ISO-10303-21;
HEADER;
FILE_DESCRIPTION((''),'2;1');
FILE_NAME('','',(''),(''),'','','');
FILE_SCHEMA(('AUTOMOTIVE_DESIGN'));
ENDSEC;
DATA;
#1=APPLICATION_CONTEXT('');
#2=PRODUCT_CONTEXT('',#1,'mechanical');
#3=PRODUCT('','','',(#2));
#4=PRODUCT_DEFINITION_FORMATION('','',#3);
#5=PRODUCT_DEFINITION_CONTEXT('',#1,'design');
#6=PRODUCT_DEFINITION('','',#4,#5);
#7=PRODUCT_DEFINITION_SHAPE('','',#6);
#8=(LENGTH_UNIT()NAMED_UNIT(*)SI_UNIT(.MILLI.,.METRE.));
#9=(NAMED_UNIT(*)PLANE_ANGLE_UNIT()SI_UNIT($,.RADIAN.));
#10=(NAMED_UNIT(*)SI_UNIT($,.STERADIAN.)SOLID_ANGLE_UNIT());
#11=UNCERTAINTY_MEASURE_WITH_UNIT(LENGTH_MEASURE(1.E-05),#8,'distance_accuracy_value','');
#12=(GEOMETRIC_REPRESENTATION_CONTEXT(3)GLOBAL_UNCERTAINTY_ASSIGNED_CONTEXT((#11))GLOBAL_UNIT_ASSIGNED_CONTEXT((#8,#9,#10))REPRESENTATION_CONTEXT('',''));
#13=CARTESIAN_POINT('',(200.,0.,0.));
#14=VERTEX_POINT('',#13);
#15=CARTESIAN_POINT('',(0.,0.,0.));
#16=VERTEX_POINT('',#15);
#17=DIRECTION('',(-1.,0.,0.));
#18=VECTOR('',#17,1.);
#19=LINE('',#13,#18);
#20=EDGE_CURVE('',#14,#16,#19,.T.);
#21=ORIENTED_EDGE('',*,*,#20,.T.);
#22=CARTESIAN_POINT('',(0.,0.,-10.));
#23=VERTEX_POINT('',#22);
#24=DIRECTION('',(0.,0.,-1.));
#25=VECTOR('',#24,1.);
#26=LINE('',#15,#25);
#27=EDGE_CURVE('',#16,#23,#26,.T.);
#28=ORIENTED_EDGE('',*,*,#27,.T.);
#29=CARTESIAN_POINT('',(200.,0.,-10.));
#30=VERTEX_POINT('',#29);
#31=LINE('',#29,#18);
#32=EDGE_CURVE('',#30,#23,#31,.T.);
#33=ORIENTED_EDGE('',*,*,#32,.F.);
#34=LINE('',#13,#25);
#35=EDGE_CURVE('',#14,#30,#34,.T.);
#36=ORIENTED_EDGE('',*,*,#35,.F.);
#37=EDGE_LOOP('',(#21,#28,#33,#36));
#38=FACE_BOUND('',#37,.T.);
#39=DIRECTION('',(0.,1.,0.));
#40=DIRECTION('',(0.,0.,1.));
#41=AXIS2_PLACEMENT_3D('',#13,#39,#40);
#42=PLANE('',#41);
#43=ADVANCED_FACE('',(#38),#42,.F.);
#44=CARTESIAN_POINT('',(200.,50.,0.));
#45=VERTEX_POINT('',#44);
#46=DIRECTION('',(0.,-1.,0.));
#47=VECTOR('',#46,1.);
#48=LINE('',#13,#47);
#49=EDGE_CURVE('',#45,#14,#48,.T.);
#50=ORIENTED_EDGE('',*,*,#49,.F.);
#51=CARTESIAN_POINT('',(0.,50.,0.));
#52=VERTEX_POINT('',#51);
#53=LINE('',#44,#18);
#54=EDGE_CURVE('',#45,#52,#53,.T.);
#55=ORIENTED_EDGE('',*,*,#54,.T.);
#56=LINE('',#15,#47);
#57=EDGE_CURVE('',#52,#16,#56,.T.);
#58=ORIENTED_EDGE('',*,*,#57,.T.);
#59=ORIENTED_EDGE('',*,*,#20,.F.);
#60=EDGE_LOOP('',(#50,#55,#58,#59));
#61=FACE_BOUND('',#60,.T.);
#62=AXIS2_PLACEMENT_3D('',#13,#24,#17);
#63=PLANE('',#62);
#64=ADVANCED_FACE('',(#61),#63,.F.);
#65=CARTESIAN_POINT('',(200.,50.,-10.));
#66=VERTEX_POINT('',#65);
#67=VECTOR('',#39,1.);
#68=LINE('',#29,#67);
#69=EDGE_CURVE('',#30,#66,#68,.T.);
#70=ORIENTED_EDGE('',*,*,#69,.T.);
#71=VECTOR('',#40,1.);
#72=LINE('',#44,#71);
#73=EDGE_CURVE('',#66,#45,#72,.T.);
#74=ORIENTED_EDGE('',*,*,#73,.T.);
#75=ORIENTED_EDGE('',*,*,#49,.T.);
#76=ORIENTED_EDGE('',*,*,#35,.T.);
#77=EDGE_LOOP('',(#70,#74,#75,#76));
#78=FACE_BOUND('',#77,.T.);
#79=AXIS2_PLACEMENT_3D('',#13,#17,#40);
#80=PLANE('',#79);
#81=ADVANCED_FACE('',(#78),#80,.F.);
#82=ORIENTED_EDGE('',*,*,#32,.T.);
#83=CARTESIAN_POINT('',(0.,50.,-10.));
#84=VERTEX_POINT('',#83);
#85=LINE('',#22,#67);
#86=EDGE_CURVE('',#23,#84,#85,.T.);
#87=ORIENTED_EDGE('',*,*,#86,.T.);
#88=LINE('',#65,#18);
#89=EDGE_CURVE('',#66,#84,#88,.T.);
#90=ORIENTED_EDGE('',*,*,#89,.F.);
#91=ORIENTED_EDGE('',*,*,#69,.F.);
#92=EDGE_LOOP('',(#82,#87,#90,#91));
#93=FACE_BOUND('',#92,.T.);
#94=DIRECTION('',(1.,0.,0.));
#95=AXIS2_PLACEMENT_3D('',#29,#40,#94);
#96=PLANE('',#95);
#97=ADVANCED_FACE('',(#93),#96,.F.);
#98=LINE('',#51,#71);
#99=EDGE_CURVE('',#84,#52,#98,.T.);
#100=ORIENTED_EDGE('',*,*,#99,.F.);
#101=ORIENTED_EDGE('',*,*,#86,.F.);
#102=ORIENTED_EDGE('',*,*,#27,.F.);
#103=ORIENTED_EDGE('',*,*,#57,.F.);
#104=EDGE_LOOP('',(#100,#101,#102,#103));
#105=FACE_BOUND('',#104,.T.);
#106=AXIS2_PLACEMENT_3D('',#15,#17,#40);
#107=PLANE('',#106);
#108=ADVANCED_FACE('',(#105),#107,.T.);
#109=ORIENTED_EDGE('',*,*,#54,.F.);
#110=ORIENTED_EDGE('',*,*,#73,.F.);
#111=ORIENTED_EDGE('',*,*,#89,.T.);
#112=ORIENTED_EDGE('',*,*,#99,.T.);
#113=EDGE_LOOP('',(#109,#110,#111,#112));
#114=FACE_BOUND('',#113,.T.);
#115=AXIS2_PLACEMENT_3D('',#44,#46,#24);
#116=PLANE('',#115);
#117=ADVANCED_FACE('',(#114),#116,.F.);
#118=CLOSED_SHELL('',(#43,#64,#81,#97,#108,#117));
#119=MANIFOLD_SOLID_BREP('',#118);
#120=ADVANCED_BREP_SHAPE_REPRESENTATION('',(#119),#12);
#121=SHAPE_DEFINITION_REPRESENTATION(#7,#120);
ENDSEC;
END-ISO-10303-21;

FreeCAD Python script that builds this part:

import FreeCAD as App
import Part
import Sketcher
from FreeCAD import Vector

doc = App.newDocument("Part")
params = doc.addObject("Spreadsheet::Sheet", "Params")
for row, (alias, value) in enumerate([
    ("sketch1_width", "50 mm"),
    ("sketch1_height", "10 mm"),
    ("pad1_length", "200 mm"),
], start=1):
    params.set(f"A{row}", alias)
    params.set(f"B{row}", "=" + value)
    params.setAlias(f"B{row}", alias)

body = doc.addObject("PartDesign::Body", "Body")

sketch1 = body.newObject("Sketcher::SketchObject", "Sketch")
sketch1.AttachmentSupport = (doc.getObject("YZ_Plane"), [""])
sketch1.MapMode = "FlatFace"
sketch1.addGeometry([
    Part.LineSegment(Vector(50, 0, 0), Vector(0, 0, 0)),
    Part.LineSegment(Vector(0, 0, 0), Vector(0, -10, 0)),
    Part.LineSegment(Vector(0, -10, 0), Vector(50, -10, 0)),
    Part.LineSegment(Vector(50, -10, 0), Vector(50, 0, 0)),
], False)
sketch1.addConstraint([
    Sketcher.Constraint("Coincident", 0, 2, 1, 1),
    Sketcher.Constraint("Coincident", 1, 2, 2, 1),
    Sketcher.Constraint("Coincident", 2, 2, 3, 1),
    Sketcher.Constraint("Coincident", 3, 2, 0, 1),
    Sketcher.Constraint("Horizontal", 0),
    Sketcher.Constraint("Vertical", 1),
    Sketcher.Constraint("Horizontal", 2),
    Sketcher.Constraint("Vertical", 3),
    Sketcher.Constraint("Coincident", 0, 2, -1, 1),
    Sketcher.Constraint("DistanceX", 0, 2, 0, 1, 50.0),
    Sketcher.Constraint("DistanceY", 1, 2, 1, 1, 10.0),
])
sketch1.setExpression("Constraints[9]", "Params.sketch1_width")
sketch1.setExpression("Constraints[10]", "Params.sketch1_height")
pad1 = body.newObject("PartDesign::Pad", "Pad")
pad1.Profile = sketch1
pad1.setExpression("Length", "Params.pad1_length")

doc.recompute()
